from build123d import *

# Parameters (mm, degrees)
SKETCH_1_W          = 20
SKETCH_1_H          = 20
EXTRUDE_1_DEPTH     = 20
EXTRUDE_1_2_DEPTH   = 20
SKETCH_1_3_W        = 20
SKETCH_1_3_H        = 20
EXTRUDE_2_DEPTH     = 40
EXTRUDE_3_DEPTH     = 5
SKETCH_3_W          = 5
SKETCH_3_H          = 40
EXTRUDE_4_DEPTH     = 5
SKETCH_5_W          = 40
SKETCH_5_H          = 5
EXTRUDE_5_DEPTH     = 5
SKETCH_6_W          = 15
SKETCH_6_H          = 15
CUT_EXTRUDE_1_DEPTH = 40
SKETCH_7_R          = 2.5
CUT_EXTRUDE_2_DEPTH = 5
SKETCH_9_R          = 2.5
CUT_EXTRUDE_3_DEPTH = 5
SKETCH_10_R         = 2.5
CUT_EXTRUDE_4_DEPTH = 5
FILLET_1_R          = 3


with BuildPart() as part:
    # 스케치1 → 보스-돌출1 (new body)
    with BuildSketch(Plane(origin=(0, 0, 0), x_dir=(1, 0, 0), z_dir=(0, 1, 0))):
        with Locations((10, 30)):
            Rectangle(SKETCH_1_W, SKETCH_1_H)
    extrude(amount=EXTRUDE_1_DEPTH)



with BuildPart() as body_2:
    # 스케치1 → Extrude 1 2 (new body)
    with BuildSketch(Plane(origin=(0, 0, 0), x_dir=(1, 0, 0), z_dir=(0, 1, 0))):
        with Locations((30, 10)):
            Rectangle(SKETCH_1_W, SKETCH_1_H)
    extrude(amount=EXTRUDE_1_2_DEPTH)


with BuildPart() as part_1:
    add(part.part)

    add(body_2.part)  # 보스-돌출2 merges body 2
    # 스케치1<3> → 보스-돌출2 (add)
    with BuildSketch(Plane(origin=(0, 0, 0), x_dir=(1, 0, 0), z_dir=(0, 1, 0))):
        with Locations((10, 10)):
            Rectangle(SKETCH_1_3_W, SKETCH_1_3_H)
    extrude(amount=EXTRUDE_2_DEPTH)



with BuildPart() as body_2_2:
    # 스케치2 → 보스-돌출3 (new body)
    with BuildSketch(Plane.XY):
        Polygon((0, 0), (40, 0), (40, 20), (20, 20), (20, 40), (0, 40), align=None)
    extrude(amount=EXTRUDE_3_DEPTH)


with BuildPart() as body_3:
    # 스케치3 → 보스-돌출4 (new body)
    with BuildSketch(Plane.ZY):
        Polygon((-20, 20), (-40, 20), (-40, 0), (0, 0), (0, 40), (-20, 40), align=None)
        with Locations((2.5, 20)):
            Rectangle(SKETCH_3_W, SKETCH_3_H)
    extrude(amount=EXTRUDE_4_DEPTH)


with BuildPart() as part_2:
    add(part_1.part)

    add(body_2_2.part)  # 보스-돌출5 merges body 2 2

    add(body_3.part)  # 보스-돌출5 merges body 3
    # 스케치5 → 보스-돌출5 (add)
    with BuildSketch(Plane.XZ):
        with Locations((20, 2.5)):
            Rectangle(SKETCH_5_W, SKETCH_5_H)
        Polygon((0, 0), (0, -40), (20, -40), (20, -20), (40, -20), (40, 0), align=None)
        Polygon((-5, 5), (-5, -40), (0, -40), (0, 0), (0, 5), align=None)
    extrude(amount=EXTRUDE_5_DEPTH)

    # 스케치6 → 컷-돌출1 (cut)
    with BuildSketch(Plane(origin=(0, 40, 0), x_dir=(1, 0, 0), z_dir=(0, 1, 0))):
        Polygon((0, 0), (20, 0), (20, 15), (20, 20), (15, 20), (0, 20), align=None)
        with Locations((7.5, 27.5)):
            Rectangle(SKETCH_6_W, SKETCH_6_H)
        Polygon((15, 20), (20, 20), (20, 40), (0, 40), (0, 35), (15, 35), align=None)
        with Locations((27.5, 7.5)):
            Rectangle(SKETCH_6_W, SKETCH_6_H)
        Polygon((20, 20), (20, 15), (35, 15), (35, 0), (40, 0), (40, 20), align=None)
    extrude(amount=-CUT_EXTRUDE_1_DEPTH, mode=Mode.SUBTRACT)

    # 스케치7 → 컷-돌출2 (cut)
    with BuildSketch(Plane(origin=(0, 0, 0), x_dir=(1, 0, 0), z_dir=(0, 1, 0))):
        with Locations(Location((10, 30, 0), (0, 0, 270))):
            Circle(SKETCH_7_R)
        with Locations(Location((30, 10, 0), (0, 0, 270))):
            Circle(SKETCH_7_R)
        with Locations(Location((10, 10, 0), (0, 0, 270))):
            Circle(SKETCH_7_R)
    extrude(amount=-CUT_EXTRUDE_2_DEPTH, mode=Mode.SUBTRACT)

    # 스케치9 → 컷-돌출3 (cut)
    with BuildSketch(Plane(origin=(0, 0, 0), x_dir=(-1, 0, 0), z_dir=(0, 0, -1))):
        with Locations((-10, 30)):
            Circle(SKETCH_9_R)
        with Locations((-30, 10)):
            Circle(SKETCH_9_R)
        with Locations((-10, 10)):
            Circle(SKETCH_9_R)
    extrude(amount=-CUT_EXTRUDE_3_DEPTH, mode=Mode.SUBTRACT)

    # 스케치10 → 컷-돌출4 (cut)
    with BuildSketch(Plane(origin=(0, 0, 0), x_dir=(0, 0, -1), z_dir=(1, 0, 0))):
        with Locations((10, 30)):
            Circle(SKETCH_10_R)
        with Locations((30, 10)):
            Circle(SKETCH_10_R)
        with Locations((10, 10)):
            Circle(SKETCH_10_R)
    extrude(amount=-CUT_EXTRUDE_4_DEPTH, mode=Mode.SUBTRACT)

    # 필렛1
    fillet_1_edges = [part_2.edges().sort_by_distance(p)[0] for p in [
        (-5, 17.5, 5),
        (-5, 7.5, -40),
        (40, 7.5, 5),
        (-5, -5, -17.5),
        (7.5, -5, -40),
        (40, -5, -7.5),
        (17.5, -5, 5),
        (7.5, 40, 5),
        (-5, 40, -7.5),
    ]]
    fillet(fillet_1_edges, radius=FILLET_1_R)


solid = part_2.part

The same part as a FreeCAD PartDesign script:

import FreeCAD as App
import Part
import Sketcher

V = App.Vector
Q = App.Units.Quantity


def edges_at(feature, points):
    """Names of the edges that pass closest to the given points."""
    edges = feature.Shape.Edges
    near = lambda p: min(range(len(edges)), key=lambda i: edges[i].distToShape(Part.Vertex(*p))[0])
    return sorted({f"Edge{near(p) + 1}" for p in points})

doc = App.newDocument("Part")
body = doc.addObject("PartDesign::Body", "Body")

# Sketch on XZ plane
sketch1 = body.newObject("Sketcher::SketchObject", "Sketch")
sketch1.AttachmentSupport = (doc.getObject("XZ_Plane"), [""])
sketch1.MapMode = "FlatFace"
sketch1.addGeometry(Part.LineSegment(V(0, -40, 0), V(0, -20, 0)), False)
sketch1.addGeometry(Part.LineSegment(V(0, -20, 0), V(20, -20, 0)), False)
sketch1.addGeometry(Part.LineSegment(V(20, -20, 0), V(20, -40, 0)), False)
sketch1.addGeometry(Part.LineSegment(V(20, -40, 0), V(0, -40, 0)), False)
sketch1.addConstraint(Sketcher.Constraint("Coincident", 0, 2, 1, 1))
sketch1.addConstraint(Sketcher.Constraint("Coincident", 1, 2, 2, 1))
sketch1.addConstraint(Sketcher.Constraint("Coincident", 2, 2, 3, 1))
sketch1.addConstraint(Sketcher.Constraint("Coincident", 3, 2, 0, 1))
sketch1.addConstraint(Sketcher.Constraint("Vertical", 0))
sketch1.addConstraint(Sketcher.Constraint("Horizontal", 1))
sketch1.addConstraint(Sketcher.Constraint("Vertical", 2))
sketch1.addConstraint(Sketcher.Constraint("Horizontal", 3))
sketch1.addConstraint(Sketcher.Constraint("PointOnObject", 0, 2, -2))
sketch1.addConstraint(Sketcher.Constraint("Equal", 3, 0))
sketch1.addConstraint(Sketcher.Constraint("DistanceX", 1, 1, 1, 2, Q("20 mm")))
sketch1.addConstraint(Sketcher.Constraint("DistanceY", 0, 2, -1, 1, Q("20 mm")))
pad1 = body.newObject("PartDesign::Pad", "Pad")
pad1.Profile = sketch1
pad1.Length = 20
pad1.Reversed = True
body2 = doc.addObject("PartDesign::Body", "Body001")

# Sketch on XZ plane
sketch2 = body2.newObject("Sketcher::SketchObject", "Sketch001")
sketch2.AttachmentSupport = (doc.getObject("XZ_Plane001"), [""])
sketch2.MapMode = "FlatFace"
sketch2.addGeometry(Part.LineSegment(V(20, -20, 0), V(20, 0, 0)), False)
sketch2.addGeometry(Part.LineSegment(V(20, 0, 0), V(40, 0, 0)), False)
sketch2.addGeometry(Part.LineSegment(V(40, 0, 0), V(40, -20, 0)), False)
sketch2.addGeometry(Part.LineSegment(V(40, -20, 0), V(20, -20, 0)), False)
sketch2.addConstraint(Sketcher.Constraint("Coincident", 0, 2, 1, 1))
sketch2.addConstraint(Sketcher.Constraint("Coincident", 1, 2, 2, 1))
sketch2.addConstraint(Sketcher.Constraint("Coincident", 2, 2, 3, 1))
sketch2.addConstraint(Sketcher.Constraint("Coincident", 3, 2, 0, 1))
sketch2.addConstraint(Sketcher.Constraint("Vertical", 0))
sketch2.addConstraint(Sketcher.Constraint("Horizontal", 1))
sketch2.addConstraint(Sketcher.Constraint("Vertical", 2))
sketch2.addConstraint(Sketcher.Constraint("Horizontal", 3))
sketch2.addConstraint(Sketcher.Constraint("PointOnObject", 0, 2, -1))
sketch2.addConstraint(Sketcher.Constraint("Equal", 3, 0))
sketch2.addConstraint(Sketcher.Constraint("DistanceX", 1, 1, 1, 2, Q("20 mm")))
sketch2.addConstraint(Sketcher.Constraint("DistanceX", -1, 1, 0, 2, Q("20 mm")))
pad2 = body2.newObject("PartDesign::Pad", "Pad001")
pad2.Profile = sketch2
pad2.Length = 20
pad2.Reversed = True
body.AllowCompound = True
doc.recompute()

boolean = body.newObject("PartDesign::Boolean", "Boolean")
boolean.Type = "Fuse"
boolean.addObjects([body2])

# Sketch on XZ plane
sketch3 = body.newObject("Sketcher::SketchObject", "Sketch002")
sketch3.AttachmentSupport = (doc.getObject("XZ_Plane"), [""])
sketch3.MapMode = "FlatFace"
sketch3.addGeometry(Part.LineSegment(V(0, -20, 0), V(0, 0, 0)), False)
sketch3.addGeometry(Part.LineSegment(V(0, 0, 0), V(20, 0, 0)), False)
sketch3.addGeometry(Part.LineSegment(V(20, 0, 0), V(20, -20, 0)), False)
sketch3.addGeometry(Part.LineSegment(V(20, -20, 0), V(0, -20, 0)), False)
sketch3.addConstraint(Sketcher.Constraint("Coincident", 0, 2, 1, 1))
sketch3.addConstraint(Sketcher.Constraint("Coincident", 1, 2, 2, 1))
sketch3.addConstraint(Sketcher.Constraint("Coincident", 2, 2, 3, 1))
sketch3.addConstraint(Sketcher.Constraint("Coincident", 3, 2, 0, 1))
sketch3.addConstraint(Sketcher.Constraint("Vertical", 0))
sketch3.addConstraint(Sketcher.Constraint("Horizontal", 1))
sketch3.addConstraint(Sketcher.Constraint("Vertical", 2))
sketch3.addConstraint(Sketcher.Constraint("Horizontal", 3))
sketch3.addConstraint(Sketcher.Constraint("Coincident", 0, 2, -1, 1))
sketch3.addConstraint(Sketcher.Constraint("Equal", 3, 0))
sketch3.addConstraint(Sketcher.Constraint("DistanceX", 1, 1, 1, 2, Q("20 mm")))
pad3 = body.newObject("PartDesign::Pad", "Pad002")
pad3.Profile = sketch3
pad3.Length = 40
pad3.Reversed = True
body3 = doc.addObject("PartDesign::Body", "Body002")

# Sketch on XY plane
sketch4 = body3.newObject("Sketcher::SketchObject", "Sketch003")
sketch4.AttachmentSupport = (doc.getObject("XY_Plane002"), [""])
sketch4.MapMode = "FlatFace"
sketch4.addGeometry(Part.LineSegment(V(0, 0, 0), V(40, 0, 0)), False)
sketch4.addGeometry(Part.LineSegment(V(40, 0, 0), V(40, 20, 0)), False)
sketch4.addGeometry(Part.LineSegment(V(40, 20, 0), V(20, 20, 0)), False)
sketch4.addGeometry(Part.LineSegment(V(20, 20, 0), V(20, 40, 0)), False)
sketch4.addGeometry(Part.LineSegment(V(20, 40, 0), V(0, 40, 0)), False)
sketch4.addGeometry(Part.LineSegment(V(0, 40, 0), V(0, 0, 0)), False)
sketch4.addConstraint(Sketcher.Constraint("Coincident", 0, 2, 1, 1))
sketch4.addConstraint(Sketcher.Constraint("Coincident", 1, 2, 2, 1))
sketch4.addConstraint(Sketcher.Constraint("Coincident", 2, 2, 3, 1))
sketch4.addConstraint(Sketcher.Constraint("Coincident", 3, 2, 4, 1))
sketch4.addConstraint(Sketcher.Constraint("Coincident", 4, 2, 5, 1))
sketch4.addConstraint(Sketcher.Constraint("Coincident", 5, 2, 0, 1))
sketch4.addConstraint(Sketcher.Constraint("Horizontal", 0))
sketch4.addConstraint(Sketcher.Constraint("Vertical", 1))
sketch4.addConstraint(Sketcher.Constraint("Horizontal", 2))
sketch4.addConstraint(Sketcher.Constraint("Vertical", 3))
sketch4.addConstraint(Sketcher.Constraint("Horizontal", 4))
sketch4.addConstraint(Sketcher.Constraint("Vertical", 5))
sketch4.addConstraint(Sketcher.Constraint("Coincident", 5, 2, -1, 1))
sketch4.addConstraint(Sketcher.Constraint("Equal", 2, 4))
sketch4.addConstraint(Sketcher.Constraint("Equal", 4, 1))
sketch4.addConstraint(Sketcher.Constraint("Equal", 1, 3))
sketch4.addConstraint(Sketcher.Constraint("DistanceX", 0, 1, 0, 2, Q("40 mm")))
pad4 = body3.newObject("PartDesign::Pad", "Pad003")
pad4.Profile = sketch4
pad4.Length = 5
body4 = doc.addObject("PartDesign::Body", "Body003")

# Sketch on YZ plane
sketch5 = body4.newObject("Sketcher::SketchObject", "Sketch004")
sketch5.AttachmentSupport = (doc.getObject("YZ_Plane003"), [""])
sketch5.MapMode = "FlatFace"
sketch5.addGeometry(Part.LineSegment(V(20, -20, 0), V(20, -40, 0)), False)
sketch5.addGeometry(Part.LineSegment(V(20, -40, 0), V(0, -40, 0)), False)
sketch5.addGeometry(Part.LineSegment(V(0, -40, 0), V(0, 5, 0)), False)
sketch5.addGeometry(Part.LineSegment(V(0, 5, 0), V(40, 5, 0)), False)
sketch5.addGeometry(Part.LineSegment(V(40, 5, 0), V(40, -20, 0)), False)
sketch5.addGeometry(Part.LineSegment(V(40, -20, 0), V(20, -20, 0)), False)
sketch5.addConstraint(Sketcher.Constraint("Coincident", 0, 2, 1, 1))
sketch5.addConstraint(Sketcher.Constraint("Coincident", 1, 2, 2, 1))
sketch5.addConstraint(Sketcher.Constraint("Coincident", 2, 2, 3, 1))
sketch5.addConstraint(Sketcher.Constraint("Coincident", 3, 2, 4, 1))
sketch5.addConstraint(Sketcher.Constraint("Coincident", 4, 2, 5, 1))
sketch5.addConstraint(Sketcher.Constraint("Coincident", 5, 2, 0, 1))
sketch5.addConstraint(Sketcher.Constraint("Vertical", 0))
sketch5.addConstraint(Sketcher.Constraint("Horizontal", 1))
sketch5.addConstraint(Sketcher.Constraint("Vertical", 2))
sketch5.addConstraint(Sketcher.Constraint("Horizontal", 3))
sketch5.addConstraint(Sketcher.Constraint("Vertical", 4))
sketch5.addConstraint(Sketcher.Constraint("Horizontal", 5))
sketch5.addConstraint(Sketcher.Constraint("PointOnObject", 1, 2, -2))
sketch5.addConstraint(Sketcher.Constraint("Equal", 1, 5))
sketch5.addConstraint(Sketcher.Constraint("Equal", 5, 0))
sketch5.addConstraint(Sketcher.Constraint("DistanceX", 1, 2, 1, 1, Q("20 mm")))
sketch5.addConstraint(Sketcher.Constraint("DistanceY", 2, 1, 2, 2, Q("45 mm")))
sketch5.addConstraint(Sketcher.Constraint("DistanceY", 0, 2, -1, 1, Q("40 mm")))
pad5 = body4.newObject("PartDesign::Pad", "Pad004")
pad5.Profile = sketch5
pad5.Length = 5
pad5.Reversed = True
doc.recompute()

boolean2 = body.newObject("PartDesign::Boolean", "Boolean001")
boolean2.Type = "Fuse"
boolean2.addObjects([body3])
doc.recompute()

boolean3 = body.newObject("PartDesign::Boolean", "Boolean002")
boolean3.Type = "Fuse"
boolean3.addObjects([body4])

# Sketch on XZ plane
sketch6 = body.newObject("Sketcher::SketchObject", "Sketch005")
sketch6.AttachmentSupport = (doc.getObject("XZ_Plane"), [""])
sketch6.MapMode = "FlatFace"
sketch6.addGeometry(Part.LineSegment(V(20, -40, 0), V(20, -20, 0)), False)
sketch6.addGeometry(Part.LineSegment(V(20, -20, 0), V(40, -20, 0)), False)
sketch6.addGeometry(Part.LineSegment(V(40, -20, 0), V(40, 5, 0)), False)
sketch6.addGeometry(Part.LineSegment(V(40, 5, 0), V(-5, 5, 0)), False)
sketch6.addGeometry(Part.LineSegment(V(-5, 5, 0), V(-5, -40, 0)), False)
sketch6.addGeometry(Part.LineSegment(V(-5, -40, 0), V(20, -40, 0)), False)
sketch6.addConstraint(Sketcher.Constraint("Coincident", 0, 2, 1, 1))
sketch6.addConstraint(Sketcher.Constraint("Coincident", 1, 2, 2, 1))
sketch6.addConstraint(Sketcher.Constraint("Coincident", 2, 2, 3, 1))
sketch6.addConstraint(Sketcher.Constraint("Coincident", 3, 2, 4, 1))
sketch6.addConstraint(Sketcher.Constraint("Coincident", 4, 2, 5, 1))
sketch6.addConstraint(Sketcher.Constraint("Coincident", 5, 2, 0, 1))
sketch6.addConstraint(Sketcher.Constraint("Vertical", 0))
sketch6.addConstraint(Sketcher.Constraint("Horizontal", 1))
sketch6.addConstraint(Sketcher.Constraint("Vertical", 2))
sketch6.addConstraint(Sketcher.Constraint("Horizontal", 3))
sketch6.addConstraint(Sketcher.Constraint("Vertical", 4))
sketch6.addConstraint(Sketcher.Constraint("Horizontal", 5))
sketch6.addConstraint(Sketcher.Constraint("Equal", 1, 0))
sketch6.addConstraint(Sketcher.Constraint("Equal", 5, 2))
sketch6.addConstraint(Sketcher.Constraint("DistanceX", 1, 1, 1, 2, Q("20 mm")))
sketch6.addConstraint(Sketcher.Constraint("DistanceX", 3, 2, 3, 1, Q("45 mm")))
sketch6.addConstraint(Sketcher.Constraint("DistanceX", -1, 1, 0, 2, Q("20 mm")))
sketch6.addConstraint(Sketcher.Constraint("DistanceY", 0, 2, -1, 1, Q("20 mm")))
pad6 = body.newObject("PartDesign::Pad", "Pad005")
pad6.Profile = sketch6
pad6.Length = 5

# Sketch on XZ plane
sketch7 = body.newObject("Sketcher::SketchObject", "Sketch006")
sketch7.AttachmentSupport = (doc.getObject("XZ_Plane"), [""])
sketch7.MapMode = "FlatFace"
sketch7.AttachmentOffset = App.Placement(V(0, 0, -40), App.Rotation())
sketch7.addGeometry(Part.LineSegment(V(0, 0, 0), V(40, 0, 0)), False)
sketch7.addGeometry(Part.LineSegment(V(40, 0, 0), V(40, -20, 0)), False)
sketch7.addGeometry(Part.LineSegment(V(40, -20, 0), V(20, -20, 0)), False)
sketch7.addGeometry(Part.LineSegment(V(20, -20, 0), V(20, -40, 0)), False)
sketch7.addGeometry(Part.LineSegment(V(20, -40, 0), V(0, -40, 0)), False)
sketch7.addGeometry(Part.LineSegment(V(0, -40, 0), V(0, 0, 0)), False)
sketch7.addConstraint(Sketcher.Constraint("Coincident", 0, 2, 1, 1))
sketch7.addConstraint(Sketcher.Constraint("Coincident", 1, 2, 2, 1))
sketch7.addConstraint(Sketcher.Constraint("Coincident", 2, 2, 3, 1))
sketch7.addConstraint(Sketcher.Constraint("Coincident", 3, 2, 4, 1))
sketch7.addConstraint(Sketcher.Constraint("Coincident", 4, 2, 5, 1))
sketch7.addConstraint(Sketcher.Constraint("Coincident", 5, 2, 0, 1))
sketch7.addConstraint(Sketcher.Constraint("Horizontal", 0))
sketch7.addConstraint(Sketcher.Constraint("Vertical", 1))
sketch7.addConstraint(Sketcher.Constraint("Horizontal", 2))
sketch7.addConstraint(Sketcher.Constraint("Vertical", 3))
sketch7.addConstraint(Sketcher.Constraint("Horizontal", 4))
sketch7.addConstraint(Sketcher.Constraint("Vertical", 5))
sketch7.addConstraint(Sketcher.Constraint("Coincident", 5, 2, -1, 1))
sketch7.addConstraint(Sketcher.Constraint("Equal", 2, 4))
sketch7.addConstraint(Sketcher.Constraint("Equal", 4, 1))
sketch7.addConstraint(Sketcher.Constraint("Equal", 1, 3))
sketch7.addConstraint(Sketcher.Constraint("DistanceX", 0, 1, 0, 2, Q("40 mm")))
pocket1 = body.newObject("PartDesign::Pocket", "Pocket")
pocket1.Profile = sketch7
pocket1.Length = 40
pocket1.Reversed = True

# Sketch on XZ plane
sketch8 = body.newObject("Sketcher::SketchObject", "Sketch007")
sketch8.AttachmentSupport = (doc.getObject("XZ_Plane"), [""])
sketch8.MapMode = "FlatFace"
sketch8.addGeometry(Part.Circle(V(10, -30, 0), V(0, 0, 1), 2.5), False)
sketch8.addGeometry(Part.Circle(V(30, -10, 0), V(0, 0, 1), 2.5), False)
sketch8.addGeometry(Part.Circle(V(10, -10, 0), V(0, 0, 1), 2.5), False)
sketch8.addConstraint(Sketcher.Constraint("Equal", 0, 1))
sketch8.addConstraint(Sketcher.Constraint("Equal", 1, 2))
sketch8.addConstraint(Sketcher.Constraint("Horizontal", 1, 3, 2, 3))
sketch8.addConstraint(Sketcher.Constraint("Vertical", 0, 3, 2, 3))
sketch8.addConstraint(Sketcher.Constraint("Diameter", 0, Q("5 mm")))
sketch8.addConstraint(Sketcher.Constraint("DistanceX", -1, 1, 0, 3, Q("10 mm")))
sketch8.addConstraint(Sketcher.Constraint("DistanceY", 0, 3, -1, 1, Q("30 mm")))
sketch8.addConstraint(Sketcher.Constraint("DistanceX", -1, 1, 1, 3, Q("30 mm")))
sketch8.addConstraint(Sketcher.Constraint("DistanceY", 1, 3, -1, 1, Q("10 mm")))
pocket2 = body.newObject("PartDesign::Pocket", "Pocket001")
pocket2.Profile = sketch8
pocket2.Length = 5
pocket2.Reversed = True

# Sketch on XY plane
sketch9 = body.newObject("Sketcher::SketchObject", "Sketch008")
sketch9.AttachmentSupport = (doc.getObject("XY_Plane"), [""])
sketch9.MapMode = "FlatFace"
sketch9.addGeometry(Part.Circle(V(10, 30, 0), V(0, 0, 1), 2.5), False)
sketch9.addGeometry(Part.Circle(V(30, 10, 0), V(0, 0, 1), 2.5), False)
sketch9.addGeometry(Part.Circle(V(10, 10, 0), V(0, 0, 1), 2.5), False)
sketch9.addConstraint(Sketcher.Constraint("Equal", 0, 1))
sketch9.addConstraint(Sketcher.Constraint("Equal", 1, 2))
sketch9.addConstraint(Sketcher.Constraint("Horizontal", 1, 3, 2, 3))
sketch9.addConstraint(Sketcher.Constraint("Vertical", 0, 3, 2, 3))
sketch9.addConstraint(Sketcher.Constraint("Diameter", 0, Q("5 mm")))
sketch9.addConstraint(Sketcher.Constraint("DistanceX", -1, 1, 0, 3, Q("10 mm")))
sketch9.addConstraint(Sketcher.Constraint("DistanceY", -1, 1, 0, 3, Q("30 mm")))
sketch9.addConstraint(Sketcher.Constraint("DistanceX", -1, 1, 1, 3, Q("30 mm")))
sketch9.addConstraint(Sketcher.Constraint("DistanceY", -1, 1, 1, 3, Q("10 mm")))
pocket3 = body.newObject("PartDesign::Pocket", "Pocket002")
pocket3.Profile = sketch9
pocket3.Length = 5
pocket3.Reversed = True

# Sketch on YZ plane
sketch10 = body.newObject("Sketcher::SketchObject", "Sketch009")
sketch10.AttachmentSupport = (doc.getObject("YZ_Plane"), [""])
sketch10.MapMode = "FlatFace"
sketch10.addGeometry(Part.Circle(V(30, -10, 0), V(0, 0, 1), 2.5), False)
sketch10.addGeometry(Part.Circle(V(10, -30, 0), V(0, 0, 1), 2.5), False)
sketch10.addGeometry(Part.Circle(V(10, -10, 0), V(0, 0, 1), 2.5), False)
sketch10.addConstraint(Sketcher.Constraint("Equal", 0, 1))
sketch10.addConstraint(Sketcher.Constraint("Equal", 1, 2))
sketch10.addConstraint(Sketcher.Constraint("Horizontal", 0, 3, 2, 3))
sketch10.addConstraint(Sketcher.Constraint("Vertical", 1, 3, 2, 3))
sketch10.addConstraint(Sketcher.Constraint("Diameter", 0, Q("5 mm")))
sketch10.addConstraint(Sketcher.Constraint("DistanceX", -1, 1, 0, 3, Q("30 mm")))
sketch10.addConstraint(Sketcher.Constraint("DistanceY", 0, 3, -1, 1, Q("10 mm")))
sketch10.addConstraint(Sketcher.Constraint("DistanceX", -1, 1, 1, 3, Q("10 mm")))
sketch10.addConstraint(Sketcher.Constraint("DistanceY", 1, 3, -1, 1, Q("30 mm")))
pocket4 = body.newObject("PartDesign::Pocket", "Pocket003")
pocket4.Profile = sketch10
pocket4.Length = 5
doc.recompute()

fillet = body.newObject("PartDesign::Fillet", "Fillet")
fillet.Base = (pocket4, edges_at(pocket4, [
    (-5, 17.5, 5),
    (-5, 7.5, -40),
    (40, 7.5, 5),
    (-5, -5, -17.5),
    (7.5, -5, -40),
    (40, -5, -7.5),
    (17.5, -5, 5),
    (7.5, 40, 5),
    (-5, 40, -7.5),
]))
fillet.Radius = 3

doc.recompute()
